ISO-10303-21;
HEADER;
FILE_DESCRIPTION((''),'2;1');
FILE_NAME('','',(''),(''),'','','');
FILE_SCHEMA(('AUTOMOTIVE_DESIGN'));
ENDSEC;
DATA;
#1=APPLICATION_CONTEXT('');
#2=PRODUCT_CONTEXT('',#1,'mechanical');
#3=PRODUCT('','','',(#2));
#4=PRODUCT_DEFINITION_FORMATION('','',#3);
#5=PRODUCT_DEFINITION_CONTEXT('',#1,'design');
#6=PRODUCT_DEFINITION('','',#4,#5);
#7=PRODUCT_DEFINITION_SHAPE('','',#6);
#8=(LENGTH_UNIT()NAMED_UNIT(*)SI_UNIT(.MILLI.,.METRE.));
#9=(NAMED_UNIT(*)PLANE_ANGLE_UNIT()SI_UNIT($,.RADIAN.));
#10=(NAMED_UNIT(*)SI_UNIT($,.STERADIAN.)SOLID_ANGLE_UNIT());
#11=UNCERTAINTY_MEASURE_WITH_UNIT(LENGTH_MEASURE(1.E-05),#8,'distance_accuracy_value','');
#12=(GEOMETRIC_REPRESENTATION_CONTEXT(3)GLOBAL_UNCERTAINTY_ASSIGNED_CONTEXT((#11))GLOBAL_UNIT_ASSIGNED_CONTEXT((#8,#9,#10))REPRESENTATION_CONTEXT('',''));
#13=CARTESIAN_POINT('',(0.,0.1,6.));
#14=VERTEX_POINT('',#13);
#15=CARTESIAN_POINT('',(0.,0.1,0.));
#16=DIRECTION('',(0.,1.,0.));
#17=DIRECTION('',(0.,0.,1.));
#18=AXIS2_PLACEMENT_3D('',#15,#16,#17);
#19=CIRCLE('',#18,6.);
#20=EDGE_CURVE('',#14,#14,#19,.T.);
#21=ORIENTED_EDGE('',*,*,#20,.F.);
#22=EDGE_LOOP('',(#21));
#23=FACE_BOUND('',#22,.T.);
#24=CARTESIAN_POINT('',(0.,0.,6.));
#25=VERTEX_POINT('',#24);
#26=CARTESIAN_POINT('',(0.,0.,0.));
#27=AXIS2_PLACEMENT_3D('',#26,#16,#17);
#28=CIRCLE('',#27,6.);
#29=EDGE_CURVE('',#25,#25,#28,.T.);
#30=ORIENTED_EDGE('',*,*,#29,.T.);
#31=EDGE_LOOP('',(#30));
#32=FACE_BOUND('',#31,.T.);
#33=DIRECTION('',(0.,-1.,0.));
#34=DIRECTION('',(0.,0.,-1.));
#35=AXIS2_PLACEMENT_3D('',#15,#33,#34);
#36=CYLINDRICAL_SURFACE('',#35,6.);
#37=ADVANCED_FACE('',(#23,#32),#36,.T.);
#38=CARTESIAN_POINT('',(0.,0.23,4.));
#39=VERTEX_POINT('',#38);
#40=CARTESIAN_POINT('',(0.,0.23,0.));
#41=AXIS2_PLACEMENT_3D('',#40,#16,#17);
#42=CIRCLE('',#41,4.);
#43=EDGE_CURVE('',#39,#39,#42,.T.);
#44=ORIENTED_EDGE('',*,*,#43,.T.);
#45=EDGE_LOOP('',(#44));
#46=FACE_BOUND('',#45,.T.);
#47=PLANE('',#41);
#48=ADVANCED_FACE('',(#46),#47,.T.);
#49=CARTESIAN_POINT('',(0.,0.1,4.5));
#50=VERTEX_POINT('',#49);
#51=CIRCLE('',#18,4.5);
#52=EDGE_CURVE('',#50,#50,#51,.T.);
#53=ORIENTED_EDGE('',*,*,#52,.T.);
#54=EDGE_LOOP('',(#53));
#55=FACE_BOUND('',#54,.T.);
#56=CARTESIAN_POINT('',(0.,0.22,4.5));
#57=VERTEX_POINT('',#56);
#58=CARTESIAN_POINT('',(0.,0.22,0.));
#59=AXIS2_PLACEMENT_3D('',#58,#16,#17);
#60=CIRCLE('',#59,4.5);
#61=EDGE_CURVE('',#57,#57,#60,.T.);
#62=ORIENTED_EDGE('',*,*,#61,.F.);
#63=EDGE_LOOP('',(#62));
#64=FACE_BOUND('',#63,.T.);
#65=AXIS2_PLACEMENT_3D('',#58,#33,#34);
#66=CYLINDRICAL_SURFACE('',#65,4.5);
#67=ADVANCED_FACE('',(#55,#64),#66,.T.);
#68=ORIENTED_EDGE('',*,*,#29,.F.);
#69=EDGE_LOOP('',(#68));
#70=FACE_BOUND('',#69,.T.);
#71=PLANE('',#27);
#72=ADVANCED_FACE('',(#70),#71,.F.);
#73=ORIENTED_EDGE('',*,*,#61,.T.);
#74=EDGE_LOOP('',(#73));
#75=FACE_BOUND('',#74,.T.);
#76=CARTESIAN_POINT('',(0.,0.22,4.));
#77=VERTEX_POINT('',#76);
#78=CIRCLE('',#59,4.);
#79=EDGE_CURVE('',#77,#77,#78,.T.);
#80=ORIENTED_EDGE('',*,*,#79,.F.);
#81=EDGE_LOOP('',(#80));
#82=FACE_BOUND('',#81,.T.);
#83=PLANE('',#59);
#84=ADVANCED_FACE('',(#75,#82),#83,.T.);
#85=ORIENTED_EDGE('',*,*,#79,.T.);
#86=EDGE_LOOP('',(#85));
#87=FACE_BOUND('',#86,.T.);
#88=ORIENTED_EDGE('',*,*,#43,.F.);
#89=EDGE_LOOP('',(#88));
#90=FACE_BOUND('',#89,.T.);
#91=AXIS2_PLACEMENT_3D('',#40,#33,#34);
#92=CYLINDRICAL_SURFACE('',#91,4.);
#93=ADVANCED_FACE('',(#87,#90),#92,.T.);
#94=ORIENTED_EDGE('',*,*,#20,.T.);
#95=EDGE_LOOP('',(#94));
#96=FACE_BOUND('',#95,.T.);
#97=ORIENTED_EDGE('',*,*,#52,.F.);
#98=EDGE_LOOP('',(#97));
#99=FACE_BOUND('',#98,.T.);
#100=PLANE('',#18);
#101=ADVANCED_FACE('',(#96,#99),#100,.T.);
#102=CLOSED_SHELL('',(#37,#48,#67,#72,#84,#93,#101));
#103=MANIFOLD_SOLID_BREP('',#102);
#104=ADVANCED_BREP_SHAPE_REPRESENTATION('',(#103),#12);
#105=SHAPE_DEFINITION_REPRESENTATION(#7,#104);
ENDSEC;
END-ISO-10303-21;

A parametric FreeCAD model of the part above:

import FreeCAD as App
import Part
import Sketcher

doc = App.newDocument("Part")
params = doc.addObject("Spreadsheet::Sheet", "Params")
for row, (alias, value) in enumerate([
    ("sketch1_diameter", "12 mm"),
    ("pad1_length", "0.1 mm"),
    ("sketch2_diameter", "9 mm"),
    ("pad2_length", "0.12 mm"),
    ("sketch3_diameter", "8 mm"),
    ("pad3_length", "0.01 mm"),
], start=1):
    params.set(f"A{row}", alias)
    params.set(f"B{row}", "=" + value)
    params.setAlias(f"B{row}", alias)

body = doc.addObject("PartDesign::Body", "Body")

# Sketch on XZ plane
sketch1 = body.newObject("Sketcher::SketchObject", "Sketch")
sketch1.AttachmentSupport = (doc.getObject("XZ_Plane"), [""])
sketch1.MapMode = "FlatFace"
sketch1.addGeometry(Part.Circle(App.Vector(0, 0, 0), App.Vector(0, 0, 1), 6), False)
sketch1.addConstraint([
    Sketcher.Constraint("Coincident", 0, 3, -1, 1),
    Sketcher.Constraint("Diameter", 0, 12.0),
])
sketch1.setExpression("Constraints[1]", "Params.sketch1_diameter")
pad1 = body.newObject("PartDesign::Pad", "Pad")
pad1.Profile = sketch1
pad1.setExpression("Length", "Params.pad1_length")
pad1.Reversed = True

# Sketch on XZ plane
sketch2 = body.newObject("Sketcher::SketchObject", "Sketch001")
sketch2.AttachmentSupport = (doc.getObject("XZ_Plane"), [""])
sketch2.MapMode = "FlatFace"
sketch2.AttachmentOffset = App.Placement(App.Vector(0, 0, -0.1), App.Rotation())
sketch2.addGeometry(Part.Circle(App.Vector(0, 0, 0), App.Vector(0, 0, 1), 4.5), False)
sketch2.addConstraint([
    Sketcher.Constraint("Coincident", 0, 3, -1, 1),
    Sketcher.Constraint("Diameter", 0, 9.0),
])
sketch2.setExpression("Constraints[1]", "Params.sketch2_diameter")
pad2 = body.newObject("PartDesign::Pad", "Pad001")
pad2.Profile = sketch2
pad2.setExpression("Length", "Params.pad2_length")
pad2.Reversed = True

# Sketch on XZ plane
sketch3 = body.newObject("Sketcher::SketchObject", "Sketch002")
sketch3.AttachmentSupport = (doc.getObject("XZ_Plane"), [""])
sketch3.MapMode = "FlatFace"
sketch3.AttachmentOffset = App.Placement(App.Vector(0, 0, -0.22), App.Rotation())
sketch3.addGeometry(Part.Circle(App.Vector(0, 0, 0), App.Vector(0, 0, 1), 4), False)
sketch3.addConstraint([
    Sketcher.Constraint("Coincident", 0, 3, -1, 1),
    Sketcher.Constraint("Diameter", 0, 8.0),
])
sketch3.setExpression("Constraints[1]", "Params.sketch3_diameter")
pad3 = body.newObject("PartDesign::Pad", "Pad002")
pad3.Profile = sketch3
pad3.setExpression("Length", "Params.pad3_length")
pad3.Reversed = True

doc.recompute()
